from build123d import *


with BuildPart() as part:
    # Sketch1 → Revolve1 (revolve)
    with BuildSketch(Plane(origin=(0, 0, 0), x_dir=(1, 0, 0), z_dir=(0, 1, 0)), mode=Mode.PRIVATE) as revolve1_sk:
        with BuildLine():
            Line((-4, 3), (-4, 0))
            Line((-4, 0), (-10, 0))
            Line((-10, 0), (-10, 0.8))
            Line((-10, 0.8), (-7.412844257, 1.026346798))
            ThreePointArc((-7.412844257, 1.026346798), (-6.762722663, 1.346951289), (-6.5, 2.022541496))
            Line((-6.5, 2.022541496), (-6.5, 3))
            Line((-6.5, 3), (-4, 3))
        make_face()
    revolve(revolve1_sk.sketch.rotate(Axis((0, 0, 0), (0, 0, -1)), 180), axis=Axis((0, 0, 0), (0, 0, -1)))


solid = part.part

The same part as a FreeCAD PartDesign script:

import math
import FreeCAD as App
import Part
import Sketcher
from FreeCAD import Vector
Q = App.Units.Quantity

doc = App.newDocument("Part")
params = doc.addObject("Spreadsheet::Sheet", "Params")
for row, (alias, value) in enumerate([
    ("sketch1_radius", "1 mm"),
    ("sketch1_width", "6 mm"),
    ("sketch1_height", "3 mm"),
    ("sketch1_width2", "2.5 mm"),
    ("sketch1_height2", "0.8 mm"),
    ("revolution_angle", "360 deg"),
], start=1):
    params.set(f"A{row}", alias)
    params.set(f"B{row}", "=" + value)
    params.setAlias(f"B{row}", alias)

body = doc.addObject("PartDesign::Body", "Body")

sketch1 = body.newObject("Sketcher::SketchObject", "Sketch")
sketch1.AttachmentSupport = (doc.getObject("XZ_Plane"), [""])
sketch1.MapMode = "FlatFace"
sketch1.addGeometry([
    Part.LineSegment(Vector(-4, 0, 0), Vector(-4, -3, 0)),
    Part.LineSegment(Vector(-4, -3, 0), Vector(-6.5, -3, 0)),
    Part.LineSegment(Vector(-6.5, -3, 0), Vector(-6.5, -2, 0)),
    Part.ArcOfCircle(Part.Circle(Vector(-7.5, -2, 0), Vector(0, 0, 1), 1), math.radians(0), math.radians(85)),
    Part.LineSegment(Vector(-7.4, -1, 0), Vector(-10, -0.8, 0)),
    Part.LineSegment(Vector(-10, -0.8, 0), Vector(-10, 0, 0)),
    Part.LineSegment(Vector(-10, 0, 0), Vector(-4, 0, 0)),
], False)
sketch1.addConstraint([
    Sketcher.Constraint("Coincident", 0, 2, 1, 1),
    Sketcher.Constraint("Coincident", 1, 2, 2, 1),
    Sketcher.Constraint("Tangent", 2, 2, 3, 1),
    Sketcher.Constraint("Tangent", 3, 2, 4, 1),
    Sketcher.Constraint("Coincident", 4, 2, 5, 1),
    Sketcher.Constraint("Coincident", 5, 2, 6, 1),
    Sketcher.Constraint("Coincident", 6, 2, 0, 1),
    Sketcher.Constraint("Vertical", 0),
    Sketcher.Constraint("Horizontal", 1),
    Sketcher.Constraint("Vertical", 2),
    Sketcher.Constraint("Vertical", 5),
    Sketcher.Constraint("Horizontal", 6),
    Sketcher.Constraint("PointOnObject", 5, 2, -1),
    Sketcher.Constraint("Radius", 3, Q("1 mm")),
    Sketcher.Constraint("DistanceX", 6, 1, 6, 2, Q("6 mm")),
    Sketcher.Constraint("DistanceY", 0, 2, 0, 1, Q("3 mm")),
    Sketcher.Constraint("Angle", 4, Q("175 deg")),
    Sketcher.Constraint("DistanceX", 1, 2, 1, 1, Q("2.5 mm")),
    Sketcher.Constraint("DistanceY", 5, 1, 5, 2, Q("0.8 mm")),
    Sketcher.Constraint("DistanceX", 0, 2, -1, 1, Q("4 mm")),
])
sketch1.setExpression("Constraints[13]", "Params.sketch1_radius")
sketch1.setExpression("Constraints[14]", "Params.sketch1_width")
sketch1.setExpression("Constraints[15]", "Params.sketch1_height")
sketch1.setExpression("Constraints[17]", "Params.sketch1_width2")
sketch1.setExpression("Constraints[18]", "Params.sketch1_height2")
revolution = body.newObject("PartDesign::Revolution", "Revolution")
revolution.Profile = sketch1
revolution.ReferenceAxis = (sketch1, ["V_Axis"])
revolution.setExpression("Angle", "Params.revolution_angle")

doc.recompute()
